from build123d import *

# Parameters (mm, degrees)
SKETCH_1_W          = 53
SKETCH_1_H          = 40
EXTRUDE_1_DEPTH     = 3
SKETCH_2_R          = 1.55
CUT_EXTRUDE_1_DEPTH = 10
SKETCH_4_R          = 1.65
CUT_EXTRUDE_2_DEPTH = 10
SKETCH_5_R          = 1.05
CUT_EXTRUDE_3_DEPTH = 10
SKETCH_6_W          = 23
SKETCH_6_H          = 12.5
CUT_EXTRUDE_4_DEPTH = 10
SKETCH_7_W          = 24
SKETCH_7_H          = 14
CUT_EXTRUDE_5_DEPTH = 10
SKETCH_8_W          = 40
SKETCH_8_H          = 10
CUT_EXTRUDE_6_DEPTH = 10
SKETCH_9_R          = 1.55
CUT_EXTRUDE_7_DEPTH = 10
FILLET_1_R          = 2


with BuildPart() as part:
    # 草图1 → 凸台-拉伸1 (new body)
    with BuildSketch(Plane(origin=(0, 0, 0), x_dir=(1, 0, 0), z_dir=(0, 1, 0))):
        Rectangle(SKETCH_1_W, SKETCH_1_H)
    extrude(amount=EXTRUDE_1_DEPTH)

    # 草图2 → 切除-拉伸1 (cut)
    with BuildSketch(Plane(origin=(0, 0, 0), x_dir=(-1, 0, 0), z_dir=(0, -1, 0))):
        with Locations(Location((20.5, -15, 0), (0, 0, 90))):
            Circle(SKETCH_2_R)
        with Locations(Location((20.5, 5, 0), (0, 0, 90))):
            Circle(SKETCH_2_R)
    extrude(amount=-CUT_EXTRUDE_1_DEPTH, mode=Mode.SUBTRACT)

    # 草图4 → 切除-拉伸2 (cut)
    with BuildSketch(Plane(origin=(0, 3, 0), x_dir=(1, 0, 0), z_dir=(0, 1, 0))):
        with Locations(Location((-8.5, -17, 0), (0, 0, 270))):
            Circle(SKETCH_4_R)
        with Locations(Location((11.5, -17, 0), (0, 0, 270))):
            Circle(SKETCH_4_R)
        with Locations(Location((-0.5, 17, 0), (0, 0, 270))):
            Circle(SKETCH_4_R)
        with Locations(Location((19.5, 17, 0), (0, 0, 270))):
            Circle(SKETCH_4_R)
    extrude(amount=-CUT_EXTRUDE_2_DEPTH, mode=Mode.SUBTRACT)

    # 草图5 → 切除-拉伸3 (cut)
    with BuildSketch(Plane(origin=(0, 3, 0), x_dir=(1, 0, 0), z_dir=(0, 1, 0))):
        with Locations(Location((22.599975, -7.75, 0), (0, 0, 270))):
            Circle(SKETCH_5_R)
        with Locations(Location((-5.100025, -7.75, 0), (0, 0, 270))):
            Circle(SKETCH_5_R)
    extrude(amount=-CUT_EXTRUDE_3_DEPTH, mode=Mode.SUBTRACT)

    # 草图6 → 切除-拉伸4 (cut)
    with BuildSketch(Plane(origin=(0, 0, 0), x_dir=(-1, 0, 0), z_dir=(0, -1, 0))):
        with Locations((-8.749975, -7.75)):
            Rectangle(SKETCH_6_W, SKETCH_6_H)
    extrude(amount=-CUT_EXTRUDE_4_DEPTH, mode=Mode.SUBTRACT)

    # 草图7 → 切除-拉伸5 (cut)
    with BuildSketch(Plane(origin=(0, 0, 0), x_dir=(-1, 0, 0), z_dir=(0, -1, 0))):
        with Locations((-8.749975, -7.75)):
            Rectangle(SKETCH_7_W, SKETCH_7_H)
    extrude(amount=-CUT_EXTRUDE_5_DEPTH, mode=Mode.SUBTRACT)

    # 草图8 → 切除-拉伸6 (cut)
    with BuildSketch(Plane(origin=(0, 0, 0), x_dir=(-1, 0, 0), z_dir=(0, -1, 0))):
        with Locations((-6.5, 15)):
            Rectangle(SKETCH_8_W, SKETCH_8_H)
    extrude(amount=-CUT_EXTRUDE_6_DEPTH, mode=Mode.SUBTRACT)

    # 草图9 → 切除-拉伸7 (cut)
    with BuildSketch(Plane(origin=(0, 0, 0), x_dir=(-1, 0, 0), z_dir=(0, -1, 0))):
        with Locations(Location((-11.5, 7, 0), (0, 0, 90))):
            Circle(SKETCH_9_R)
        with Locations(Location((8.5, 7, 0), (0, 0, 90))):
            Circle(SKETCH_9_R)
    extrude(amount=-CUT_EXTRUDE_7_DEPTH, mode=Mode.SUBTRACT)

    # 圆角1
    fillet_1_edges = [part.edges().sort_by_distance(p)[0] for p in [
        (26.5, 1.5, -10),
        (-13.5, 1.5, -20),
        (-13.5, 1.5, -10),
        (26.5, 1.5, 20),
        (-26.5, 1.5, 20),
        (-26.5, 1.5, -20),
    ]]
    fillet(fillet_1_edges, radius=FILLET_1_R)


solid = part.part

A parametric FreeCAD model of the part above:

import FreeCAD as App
import Part
import Sketcher

V = App.Vector
Q = App.Units.Quantity


def edges_at(feature, points):
    """Names of the edges that pass closest to the given points."""
    edges = feature.Shape.Edges
    near = lambda p: min(range(len(edges)), key=lambda i: edges[i].distToShape(Part.Vertex(*p))[0])
    return sorted({f"Edge{near(p) + 1}" for p in points})

doc = App.newDocument("Part")
body = doc.addObject("PartDesign::Body", "Body")

sketch1 = body.newObject("Sketcher::SketchObject", "Sketch")
sketch1.AttachmentSupport = (doc.getObject("XZ_Plane"), [""])
sketch1.MapMode = "FlatFace"
sketch1.addGeometry(Part.LineSegment(V(-26, -20, 0), V(-26, 20, 0)), False)
sketch1.addGeometry(Part.LineSegment(V(-26, 20, 0), V(26, 20, 0)), False)
sketch1.addGeometry(Part.LineSegment(V(26, 20, 0), V(26, -20, 0)), False)
sketch1.addGeometry(Part.LineSegment(V(26, -20, 0), V(-26, -20, 0)), False)
sketch1.addConstraint(Sketcher.Constraint("Coincident", 0, 2, 1, 1))
sketch1.addConstraint(Sketcher.Constraint("Coincident", 1, 2, 2, 1))
sketch1.addConstraint(Sketcher.Constraint("Coincident", 2, 2, 3, 1))
sketch1.addConstraint(Sketcher.Constraint("Coincident", 3, 2, 0, 1))
sketch1.addConstraint(Sketcher.Constraint("Vertical", 0))
sketch1.addConstraint(Sketcher.Constraint("Horizontal", 1))
sketch1.addConstraint(Sketcher.Constraint("Vertical", 2))
sketch1.addConstraint(Sketcher.Constraint("Horizontal", 3))
sketch1.addConstraint(Sketcher.Constraint("Symmetric", 0, 2, 2, 2, -1, 1))
sketch1.addConstraint(Sketcher.Constraint("DistanceX", 1, 1, 1, 2, Q("53 mm")))
sketch1.addConstraint(Sketcher.Constraint("DistanceY", 0, 1, 0, 2, Q("40 mm")))
pad1 = body.newObject("PartDesign::Pad", "Pad")
pad1.Profile = sketch1
pad1.Length = 3
pad1.Reversed = True

sketch2 = body.newObject("Sketcher::SketchObject", "Sketch001")
sketch2.AttachmentSupport = (doc.getObject("XZ_Plane"), [""])
sketch2.MapMode = "FlatFace"
sketch2.addGeometry(Part.Circle(V(-20.5, 15, 0), V(0, 0, 1), 1.6), False)
sketch2.addGeometry(Part.Circle(V(-20.5, -5, 0), V(0, 0, 1), 1.6), False)
sketch2.addConstraint(Sketcher.Constraint("Equal", 0, 1))
sketch2.addConstraint(Sketcher.Constraint("Vertical", 0, 3, 1, 3))
sketch2.addConstraint(Sketcher.Constraint("Diameter", 0, Q("3.1 mm")))
sketch2.addConstraint(Sketcher.Constraint("DistanceY", -1, 1, 0, 3, Q("15 mm")))
sketch2.addConstraint(Sketcher.Constraint("DistanceY", 1, 3, -1, 1, Q("5 mm")))
sketch2.addConstraint(Sketcher.Constraint("DistanceX", 0, 3, -1, 1, Q("20.5 mm")))
pocket1 = body.newObject("PartDesign::Pocket", "Pocket")
pocket1.Profile = sketch2
pocket1.Length = 10

sketch3 = body.newObject("Sketcher::SketchObject", "Sketch002")
sketch3.AttachmentSupport = (doc.getObject("XZ_Plane"), [""])
sketch3.MapMode = "FlatFace"
sketch3.AttachmentOffset = App.Placement(V(0, 0, -3), App.Rotation())
sketch3.addGeometry(Part.Circle(V(-8.5, 17, 0), V(0, 0, 1), 1.6), False)
sketch3.addGeometry(Part.Circle(V(11.5, 17, 0), V(0, 0, 1), 1.6), False)
sketch3.addGeometry(Part.Circle(V(-0.5, -17, 0), V(0, 0, 1), 1.6), False)
sketch3.addGeometry(Part.Circle(V(19.5, -17, 0), V(0, 0, 1), 1.6), False)
sketch3.addConstraint(Sketcher.Constraint("Equal", 0, 1))
sketch3.addConstraint(Sketcher.Constraint("Equal", 1, 2))
sketch3.addConstraint(Sketcher.Constraint("Equal", 2, 3))
sketch3.addConstraint(Sketcher.Constraint("Horizontal", 0, 3, 1, 3))
sketch3.addConstraint(Sketcher.Constraint("Horizontal", 2, 3, 3, 3))
sketch3.addConstraint(Sketcher.Constraint("Diameter", 0, Q("3.3 mm")))
sketch3.addConstraint(Sketcher.Constraint("DistanceY", -1, 1, 0, 3, Q("17 mm")))
sketch3.addConstraint(Sketcher.Constraint("DistanceY", 2, 3, -1, 1, Q("17 mm")))
sketch3.addConstraint(Sketcher.Constraint("DistanceX", 0, 3, 1, 3, Q("20 mm")))
sketch3.addConstraint(Sketcher.Constraint("DistanceX", 0, 3, 2, 3, Q("8 mm")))
sketch3.addConstraint(Sketcher.Constraint("DistanceX", 2, 3, 3, 3, Q("20 mm")))
sketch3.addConstraint(Sketcher.Constraint("DistanceX", 0, 3, -1, 1, Q("8.5 mm")))
pocket2 = body.newObject("PartDesign::Pocket", "Pocket001")
pocket2.Profile = sketch3
pocket2.Length = 10
pocket2.Reversed = True

sketch4 = body.newObject("Sketcher::SketchObject", "Sketch003")
sketch4.AttachmentSupport = (doc.getObject("XZ_Plane"), [""])
sketch4.MapMode = "FlatFace"
sketch4.AttachmentOffset = App.Placement(V(0, 0, -3), App.Rotation())
sketch4.addGeometry(Part.Circle(V(22.6, 7.8, 0), V(0, 0, 1), 1.1), False)
sketch4.addGeometry(Part.Circle(V(-5.1, 7.8, 0), V(0, 0, 1), 1.1), False)
sketch4.addConstraint(Sketcher.Constraint("Equal", 0, 1))
sketch4.addConstraint(Sketcher.Constraint("Horizontal", 0, 3, 1, 3))
sketch4.addConstraint(Sketcher.Constraint("Diameter", 0, Q("2.1 mm")))
sketch4.addConstraint(Sketcher.Constraint("DistanceX", 1, 3, 0, 3, Q("27.7 mm")))
sketch4.addConstraint(Sketcher.Constraint("DistanceY", -1, 1, 0, 3, Q("7.75 mm")))
sketch4.addConstraint(Sketcher.Constraint("DistanceX", -1, 1, 0, 3, Q("22.599975 mm")))
pocket3 = body.newObject("PartDesign::Pocket", "Pocket002")
pocket3.Profile = sketch4
pocket3.Length = 10
pocket3.Reversed = True

sketch5 = body.newObject("Sketcher::SketchObject", "Sketch004")
sketch5.AttachmentSupport = (doc.getObject("XZ_Plane"), [""])
sketch5.MapMode = "FlatFace"
sketch5.addGeometry(Part.LineSegment(V(20, 2, 0), V(20, 14, 0)), False)
sketch5.addGeometry(Part.LineSegment(V(20, 14, 0), V(-3, 14, 0)), False)
sketch5.addGeometry(Part.LineSegment(V(-3, 14, 0), V(-3, 2, 0)), False)
sketch5.addGeometry(Part.LineSegment(V(-3, 2, 0), V(20, 2, 0)), False)
sketch5.addConstraint(Sketcher.Constraint("Coincident", 0, 2, 1, 1))
sketch5.addConstraint(Sketcher.Constraint("Coincident", 1, 2, 2, 1))
sketch5.addConstraint(Sketcher.Constraint("Coincident", 2, 2, 3, 1))
sketch5.addConstraint(Sketcher.Constraint("Coincident", 3, 2, 0, 1))
sketch5.addConstraint(Sketcher.Constraint("Vertical", 0))
sketch5.addConstraint(Sketcher.Constraint("Horizontal", 1))
sketch5.addConstraint(Sketcher.Constraint("Vertical", 2))
sketch5.addConstraint(Sketcher.Constraint("Horizontal", 3))
sketch5.addConstraint(Sketcher.Constraint("DistanceX", 1, 2, 1, 1, Q("23 mm")))
sketch5.addConstraint(Sketcher.Constraint("DistanceY", 0, 1, 0, 2, Q("12.5 mm")))
sketch5.addConstraint(Sketcher.Constraint("DistanceY", -1, 1, 0, 2, Q("14 mm")))
sketch5.addConstraint(Sketcher.Constraint("DistanceX", -1, 1, 0, 2, Q("20.249975 mm")))
pocket4 = body.newObject("PartDesign::Pocket", "Pocket003")
pocket4.Profile = sketch5
pocket4.Length = 10

sketch6 = body.newObject("Sketcher::SketchObject", "Sketch005")
sketch6.AttachmentSupport = (doc.getObject("XZ_Plane"), [""])
sketch6.MapMode = "FlatFace"
sketch6.addGeometry(Part.LineSegment(V(21, 1, 0), V(21, 15, 0)), False)
sketch6.addGeometry(Part.LineSegment(V(21, 15, 0), V(-3, 15, 0)), False)
sketch6.addGeometry(Part.LineSegment(V(-3, 15, 0), V(-3, 1, 0)), False)
sketch6.addGeometry(Part.LineSegment(V(-3, 1, 0), V(21, 1, 0)), False)
sketch6.addConstraint(Sketcher.Constraint("Coincident", 0, 2, 1, 1))
sketch6.addConstraint(Sketcher.Constraint("Coincident", 1, 2, 2, 1))
sketch6.addConstraint(Sketcher.Constraint("Coincident", 2, 2, 3, 1))
sketch6.addConstraint(Sketcher.Constraint("Coincident", 3, 2, 0, 1))
sketch6.addConstraint(Sketcher.Constraint("Vertical", 0))
sketch6.addConstraint(Sketcher.Constraint("Horizontal", 1))
sketch6.addConstraint(Sketcher.Constraint("Vertical", 2))
sketch6.addConstraint(Sketcher.Constraint("Horizontal", 3))
sketch6.addConstraint(Sketcher.Constraint("DistanceX", 1, 2, 1, 1, Q("24 mm")))
sketch6.addConstraint(Sketcher.Constraint("DistanceY", 0, 1, 0, 2, Q("14 mm")))
sketch6.addConstraint(Sketcher.Constraint("DistanceY", -1, 1, 0, 2, Q("14.75 mm")))
sketch6.addConstraint(Sketcher.Constraint("DistanceX", -1, 1, 0, 2, Q("20.749975 mm")))
pocket5 = body.newObject("PartDesign::Pocket", "Pocket004")
pocket5.Profile = sketch6
pocket5.Length = 10

sketch7 = body.newObject("Sketcher::SketchObject", "Sketch006")
sketch7.AttachmentSupport = (doc.getObject("XZ_Plane"), [""])
sketch7.MapMode = "FlatFace"
sketch7.addGeometry(Part.LineSegment(V(26, -20, 0), V(26, -10, 0)), False)
sketch7.addGeometry(Part.LineSegment(V(26, -10, 0), V(-14, -10, 0)), False)
sketch7.addGeometry(Part.LineSegment(V(-14, -10, 0), V(-14, -20, 0)), False)
sketch7.addGeometry(Part.LineSegment(V(-14, -20, 0), V(26, -20, 0)), False)
sketch7.addConstraint(Sketcher.Constraint("Coincident", 0, 2, 1, 1))
sketch7.addConstraint(Sketcher.Constraint("Coincident", 1, 2, 2, 1))
sketch7.addConstraint(Sketcher.Constraint("Coincident", 2, 2, 3, 1))
sketch7.addConstraint(Sketcher.Constraint("Coincident", 3, 2, 0, 1))
sketch7.addConstraint(Sketcher.Constraint("Vertical", 0))
sketch7.addConstraint(Sketcher.Constraint("Horizontal", 1))
sketch7.addConstraint(Sketcher.Constraint("Vertical", 2))
sketch7.addConstraint(Sketcher.Constraint("Horizontal", 3))
sketch7.addConstraint(Sketcher.Constraint("DistanceX", 1, 2, 1, 1, Q("40 mm")))
sketch7.addConstraint(Sketcher.Constraint("DistanceY", 0, 1, 0, 2, Q("10 mm")))
sketch7.addConstraint(Sketcher.Constraint("DistanceY", 0, 2, -1, 1, Q("10 mm")))
sketch7.addConstraint(Sketcher.Constraint("DistanceX", -1, 1, 0, 2, Q("26.5 mm")))
pocket6 = body.newObject("PartDesign::Pocket", "Pocket005")
pocket6.Profile = sketch7
pocket6.Length = 10

sketch8 = body.newObject("Sketcher::SketchObject", "Sketch007")
sketch8.AttachmentSupport = (doc.getObject("XZ_Plane"), [""])
sketch8.MapMode = "FlatFace"
sketch8.addGeometry(Part.Circle(V(11.5, -7, 0), V(0, 0, 1), 1.6), False)
sketch8.addGeometry(Part.Circle(V(-8.5, -7, 0), V(0, 0, 1), 1.6), False)
sketch8.addConstraint(Sketcher.Constraint("Equal", 0, 1))
sketch8.addConstraint(Sketcher.Constraint("Horizontal", 0, 3, 1, 3))
sketch8.addConstraint(Sketcher.Constraint("Diameter", 0, Q("3.1 mm")))
sketch8.addConstraint(Sketcher.Constraint("DistanceY", 0, 3, -1, 1, Q("7 mm")))
sketch8.addConstraint(Sketcher.Constraint("DistanceX", 1, 3, 0, 3, Q("20 mm")))
sketch8.addConstraint(Sketcher.Constraint("DistanceX", -1, 1, 0, 3, Q("11.5 mm")))
pocket7 = body.newObject("PartDesign::Pocket", "Pocket006")
pocket7.Profile = sketch8
pocket7.Length = 10
doc.recompute()

fillet = body.newObject("PartDesign::Fillet", "Fillet")
fillet.Base = (pocket7, edges_at(pocket7, [
    (26.5, 1.5, -10),
    (-13.5, 1.5, -20),
    (-13.5, 1.5, -10),
    (26.5, 1.5, 20),
    (-26.5, 1.5, 20),
    (-26.5, 1.5, -20),
]))
fillet.Radius = 2

doc.recompute()
